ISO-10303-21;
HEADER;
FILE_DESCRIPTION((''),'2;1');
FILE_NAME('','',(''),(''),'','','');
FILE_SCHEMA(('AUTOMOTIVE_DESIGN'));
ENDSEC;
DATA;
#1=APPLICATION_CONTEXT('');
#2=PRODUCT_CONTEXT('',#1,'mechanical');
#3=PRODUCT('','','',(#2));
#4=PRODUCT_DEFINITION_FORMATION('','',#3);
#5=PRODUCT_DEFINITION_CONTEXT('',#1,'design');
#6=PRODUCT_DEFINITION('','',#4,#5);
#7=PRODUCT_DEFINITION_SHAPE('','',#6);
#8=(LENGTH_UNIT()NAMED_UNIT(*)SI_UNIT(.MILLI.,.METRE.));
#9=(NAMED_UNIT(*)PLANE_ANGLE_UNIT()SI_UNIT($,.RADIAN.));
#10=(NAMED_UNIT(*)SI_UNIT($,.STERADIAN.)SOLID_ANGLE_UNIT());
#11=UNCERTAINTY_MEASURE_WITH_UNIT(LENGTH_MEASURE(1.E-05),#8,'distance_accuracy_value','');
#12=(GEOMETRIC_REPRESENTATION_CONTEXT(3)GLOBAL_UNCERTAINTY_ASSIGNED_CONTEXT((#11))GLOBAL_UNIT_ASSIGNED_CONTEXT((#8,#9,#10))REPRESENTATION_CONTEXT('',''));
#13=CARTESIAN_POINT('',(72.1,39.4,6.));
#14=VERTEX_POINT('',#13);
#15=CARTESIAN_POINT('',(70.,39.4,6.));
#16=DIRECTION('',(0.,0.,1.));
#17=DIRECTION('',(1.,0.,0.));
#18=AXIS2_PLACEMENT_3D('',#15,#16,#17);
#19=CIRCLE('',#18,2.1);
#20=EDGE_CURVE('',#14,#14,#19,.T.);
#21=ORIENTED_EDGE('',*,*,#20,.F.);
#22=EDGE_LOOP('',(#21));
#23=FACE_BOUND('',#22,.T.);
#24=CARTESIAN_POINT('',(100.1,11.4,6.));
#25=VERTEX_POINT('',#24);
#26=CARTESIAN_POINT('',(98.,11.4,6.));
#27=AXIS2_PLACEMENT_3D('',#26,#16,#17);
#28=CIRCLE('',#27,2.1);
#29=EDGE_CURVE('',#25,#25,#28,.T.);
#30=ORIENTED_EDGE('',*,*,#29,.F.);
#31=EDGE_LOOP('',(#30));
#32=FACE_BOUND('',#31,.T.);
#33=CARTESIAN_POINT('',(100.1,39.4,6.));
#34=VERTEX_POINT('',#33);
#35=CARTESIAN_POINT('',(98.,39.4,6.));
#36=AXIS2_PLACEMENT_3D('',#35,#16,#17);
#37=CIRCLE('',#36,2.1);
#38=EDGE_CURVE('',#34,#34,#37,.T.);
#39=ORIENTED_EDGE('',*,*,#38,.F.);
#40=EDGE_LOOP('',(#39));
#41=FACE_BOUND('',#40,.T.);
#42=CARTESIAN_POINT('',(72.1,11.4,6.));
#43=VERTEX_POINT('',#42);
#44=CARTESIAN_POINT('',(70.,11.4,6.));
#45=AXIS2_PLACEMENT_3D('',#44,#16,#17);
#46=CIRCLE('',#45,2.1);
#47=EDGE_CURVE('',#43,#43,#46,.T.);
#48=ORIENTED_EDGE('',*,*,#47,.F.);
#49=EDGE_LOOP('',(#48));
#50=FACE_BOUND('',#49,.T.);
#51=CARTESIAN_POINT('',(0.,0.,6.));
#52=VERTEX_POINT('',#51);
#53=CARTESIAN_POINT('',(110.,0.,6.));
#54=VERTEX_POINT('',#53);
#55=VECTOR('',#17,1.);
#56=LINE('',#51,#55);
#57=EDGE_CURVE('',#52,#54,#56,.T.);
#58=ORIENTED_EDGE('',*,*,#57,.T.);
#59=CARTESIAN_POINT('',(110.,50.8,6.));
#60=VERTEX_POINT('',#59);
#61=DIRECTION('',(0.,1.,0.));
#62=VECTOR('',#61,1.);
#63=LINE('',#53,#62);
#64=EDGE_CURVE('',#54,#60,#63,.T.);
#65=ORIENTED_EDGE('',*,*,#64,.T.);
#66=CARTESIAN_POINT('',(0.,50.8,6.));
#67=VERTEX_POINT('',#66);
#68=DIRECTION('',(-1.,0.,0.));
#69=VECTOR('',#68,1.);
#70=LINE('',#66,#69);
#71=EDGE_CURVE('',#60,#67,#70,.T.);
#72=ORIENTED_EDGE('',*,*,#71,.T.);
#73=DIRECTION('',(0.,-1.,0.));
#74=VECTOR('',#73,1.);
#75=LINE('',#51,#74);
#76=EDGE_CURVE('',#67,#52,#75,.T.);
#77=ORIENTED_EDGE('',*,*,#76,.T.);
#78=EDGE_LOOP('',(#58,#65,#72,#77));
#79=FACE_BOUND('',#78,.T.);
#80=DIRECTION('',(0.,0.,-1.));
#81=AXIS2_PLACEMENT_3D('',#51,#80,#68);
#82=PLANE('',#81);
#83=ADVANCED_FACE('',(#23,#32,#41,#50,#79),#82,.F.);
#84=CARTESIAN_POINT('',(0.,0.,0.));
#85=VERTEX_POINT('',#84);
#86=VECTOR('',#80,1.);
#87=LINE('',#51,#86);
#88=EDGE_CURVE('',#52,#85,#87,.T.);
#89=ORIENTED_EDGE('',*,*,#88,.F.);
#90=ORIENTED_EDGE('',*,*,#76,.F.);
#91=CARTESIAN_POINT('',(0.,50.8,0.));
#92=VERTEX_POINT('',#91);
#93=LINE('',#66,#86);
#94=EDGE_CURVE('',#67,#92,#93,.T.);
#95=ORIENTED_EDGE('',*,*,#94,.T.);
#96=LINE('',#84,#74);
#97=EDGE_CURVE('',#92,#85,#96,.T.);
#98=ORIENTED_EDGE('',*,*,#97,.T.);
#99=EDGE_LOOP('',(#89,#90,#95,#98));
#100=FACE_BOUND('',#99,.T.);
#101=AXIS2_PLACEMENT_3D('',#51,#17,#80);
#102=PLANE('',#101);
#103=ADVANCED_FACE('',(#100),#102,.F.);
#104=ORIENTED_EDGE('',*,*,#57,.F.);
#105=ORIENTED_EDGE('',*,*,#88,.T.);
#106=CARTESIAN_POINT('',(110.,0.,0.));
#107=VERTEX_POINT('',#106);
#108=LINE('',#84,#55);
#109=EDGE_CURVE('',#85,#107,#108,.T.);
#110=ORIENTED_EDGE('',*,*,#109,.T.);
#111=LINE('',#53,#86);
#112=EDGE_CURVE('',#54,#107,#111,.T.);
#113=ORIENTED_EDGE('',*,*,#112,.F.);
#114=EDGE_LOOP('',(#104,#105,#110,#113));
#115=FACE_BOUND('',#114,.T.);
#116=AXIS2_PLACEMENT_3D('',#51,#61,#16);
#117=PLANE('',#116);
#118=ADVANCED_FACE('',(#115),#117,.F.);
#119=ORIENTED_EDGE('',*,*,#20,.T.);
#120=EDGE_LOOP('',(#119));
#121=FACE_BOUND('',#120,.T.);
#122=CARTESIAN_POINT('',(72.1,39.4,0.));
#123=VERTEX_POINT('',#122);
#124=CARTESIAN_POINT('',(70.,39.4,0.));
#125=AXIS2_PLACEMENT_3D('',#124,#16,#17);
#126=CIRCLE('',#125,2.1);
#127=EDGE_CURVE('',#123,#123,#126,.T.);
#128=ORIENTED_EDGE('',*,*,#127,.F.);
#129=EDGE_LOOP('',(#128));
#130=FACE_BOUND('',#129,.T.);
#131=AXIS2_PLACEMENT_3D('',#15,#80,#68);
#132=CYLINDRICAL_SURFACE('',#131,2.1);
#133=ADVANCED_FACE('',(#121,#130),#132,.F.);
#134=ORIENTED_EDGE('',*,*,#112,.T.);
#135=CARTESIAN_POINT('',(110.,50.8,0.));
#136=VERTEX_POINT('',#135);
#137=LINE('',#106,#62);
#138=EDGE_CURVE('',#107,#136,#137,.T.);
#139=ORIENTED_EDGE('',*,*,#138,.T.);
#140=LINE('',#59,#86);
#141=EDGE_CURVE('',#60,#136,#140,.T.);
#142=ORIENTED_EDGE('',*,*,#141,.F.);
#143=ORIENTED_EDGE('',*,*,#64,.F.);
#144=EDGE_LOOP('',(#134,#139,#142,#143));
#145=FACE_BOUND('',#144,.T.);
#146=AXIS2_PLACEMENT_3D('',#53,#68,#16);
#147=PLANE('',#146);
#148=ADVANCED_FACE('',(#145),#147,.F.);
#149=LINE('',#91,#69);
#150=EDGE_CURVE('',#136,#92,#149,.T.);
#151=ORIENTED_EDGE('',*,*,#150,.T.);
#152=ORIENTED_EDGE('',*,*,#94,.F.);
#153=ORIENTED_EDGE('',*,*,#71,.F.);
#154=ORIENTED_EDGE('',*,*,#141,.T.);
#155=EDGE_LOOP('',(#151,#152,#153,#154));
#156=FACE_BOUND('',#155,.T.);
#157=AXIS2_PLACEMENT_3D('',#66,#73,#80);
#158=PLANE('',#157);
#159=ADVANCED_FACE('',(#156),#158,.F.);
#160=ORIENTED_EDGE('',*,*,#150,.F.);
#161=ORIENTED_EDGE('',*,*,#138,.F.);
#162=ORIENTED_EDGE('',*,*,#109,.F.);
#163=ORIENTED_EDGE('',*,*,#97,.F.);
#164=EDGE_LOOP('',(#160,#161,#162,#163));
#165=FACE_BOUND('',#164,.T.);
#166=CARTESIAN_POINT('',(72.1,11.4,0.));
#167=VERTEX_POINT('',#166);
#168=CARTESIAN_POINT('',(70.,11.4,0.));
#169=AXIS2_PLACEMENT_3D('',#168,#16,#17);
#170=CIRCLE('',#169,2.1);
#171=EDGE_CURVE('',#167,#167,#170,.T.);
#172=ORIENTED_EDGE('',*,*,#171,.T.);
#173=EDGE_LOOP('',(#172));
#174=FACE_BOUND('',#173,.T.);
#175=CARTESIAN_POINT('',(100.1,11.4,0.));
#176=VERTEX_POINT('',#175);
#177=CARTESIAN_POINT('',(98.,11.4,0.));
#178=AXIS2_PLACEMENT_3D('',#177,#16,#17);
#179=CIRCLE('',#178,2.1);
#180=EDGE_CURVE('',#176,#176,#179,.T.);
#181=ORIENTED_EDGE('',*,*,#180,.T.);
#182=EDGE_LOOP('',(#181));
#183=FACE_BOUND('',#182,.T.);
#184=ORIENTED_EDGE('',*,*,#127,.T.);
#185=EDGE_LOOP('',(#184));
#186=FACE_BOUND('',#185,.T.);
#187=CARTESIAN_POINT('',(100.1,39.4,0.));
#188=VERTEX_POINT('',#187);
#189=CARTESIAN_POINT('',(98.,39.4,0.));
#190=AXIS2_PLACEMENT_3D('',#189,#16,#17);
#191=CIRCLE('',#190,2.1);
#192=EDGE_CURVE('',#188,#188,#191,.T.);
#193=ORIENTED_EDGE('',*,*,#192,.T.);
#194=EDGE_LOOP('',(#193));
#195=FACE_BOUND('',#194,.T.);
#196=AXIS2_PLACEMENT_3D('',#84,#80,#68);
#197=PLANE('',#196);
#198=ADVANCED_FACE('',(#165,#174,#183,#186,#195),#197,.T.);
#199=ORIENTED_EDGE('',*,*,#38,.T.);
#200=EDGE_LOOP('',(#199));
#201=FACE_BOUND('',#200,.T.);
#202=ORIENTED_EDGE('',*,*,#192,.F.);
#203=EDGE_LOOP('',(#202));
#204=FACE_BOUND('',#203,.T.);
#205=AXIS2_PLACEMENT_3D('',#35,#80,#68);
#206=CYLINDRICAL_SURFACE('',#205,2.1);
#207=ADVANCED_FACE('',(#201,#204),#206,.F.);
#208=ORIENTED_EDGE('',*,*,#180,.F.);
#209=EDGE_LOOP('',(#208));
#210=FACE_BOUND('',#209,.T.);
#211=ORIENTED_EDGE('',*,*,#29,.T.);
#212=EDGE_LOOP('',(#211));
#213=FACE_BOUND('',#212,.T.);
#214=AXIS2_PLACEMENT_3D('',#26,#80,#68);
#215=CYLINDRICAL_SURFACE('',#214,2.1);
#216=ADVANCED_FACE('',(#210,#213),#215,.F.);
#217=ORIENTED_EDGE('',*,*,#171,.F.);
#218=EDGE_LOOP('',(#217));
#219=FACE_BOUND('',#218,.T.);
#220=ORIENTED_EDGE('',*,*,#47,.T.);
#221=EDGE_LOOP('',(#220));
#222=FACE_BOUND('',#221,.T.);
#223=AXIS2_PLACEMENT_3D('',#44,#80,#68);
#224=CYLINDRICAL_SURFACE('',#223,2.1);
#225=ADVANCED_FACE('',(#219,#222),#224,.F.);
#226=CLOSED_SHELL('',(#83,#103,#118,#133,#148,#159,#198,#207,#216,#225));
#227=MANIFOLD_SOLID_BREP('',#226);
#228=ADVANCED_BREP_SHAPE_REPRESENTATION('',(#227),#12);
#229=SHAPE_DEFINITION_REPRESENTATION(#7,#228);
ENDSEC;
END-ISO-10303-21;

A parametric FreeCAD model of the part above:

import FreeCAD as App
import Part
import Sketcher
from FreeCAD import Vector
Q = App.Units.Quantity

doc = App.newDocument("Part")
body = doc.addObject("PartDesign::Body", "Body")

# Sketch on XY plane
sketch1 = doc.addObject("Sketcher::SketchObject", "Sketch")
body.addObject(sketch1)
sketch1.AttachmentSupport = (doc.XY_Plane, [""])
sketch1.MapMode = "FlatFace"
sketch1.addGeometry([
    Part.LineSegment(Vector(0, 50.8, 0), Vector(0, 0, 0)),  # 0
    Part.LineSegment(Vector(0, 0, 0), Vector(110, 0, 0)),  # 1
    Part.LineSegment(Vector(110, 0, 0), Vector(110, 50.8, 0)),  # 2
    Part.LineSegment(Vector(110, 50.8, 0), Vector(0, 50.8, 0)),  # 3
    Part.Circle(Vector(70, 11.4, 0), Vector(0, 0, 1), 2.1),  # 4
    Part.Circle(Vector(98, 11.4, 0), Vector(0, 0, 1), 2.1),  # 5
    Part.Circle(Vector(70, 39.4, 0), Vector(0, 0, 1), 2.1),  # 6
    Part.Circle(Vector(98, 39.4, 0), Vector(0, 0, 1), 2.1),  # 7
], False)
sketch1.addConstraint([
    Sketcher.Constraint("Coincident", 0, 2, 1, 1),
    Sketcher.Constraint("Coincident", 1, 2, 2, 1),
    Sketcher.Constraint("Coincident", 2, 2, 3, 1),
    Sketcher.Constraint("Coincident", 3, 2, 0, 1),
    Sketcher.Constraint("Vertical", 0),
    Sketcher.Constraint("Horizontal", 1),
    Sketcher.Constraint("Vertical", 2),
    Sketcher.Constraint("Horizontal", 3),
    Sketcher.Constraint("Coincident", 0, 2, -1, 1),
    Sketcher.Constraint("Equal", 4, 5),
    Sketcher.Constraint("Equal", 5, 6),
    Sketcher.Constraint("Equal", 6, 7),
    Sketcher.Constraint("Horizontal", 4, 3, 5, 3),
    Sketcher.Constraint("Horizontal", 6, 3, 7, 3),
    Sketcher.Constraint("Vertical", 4, 3, 6, 3),
    Sketcher.Constraint("Vertical", 5, 3, 7, 3),
    Sketcher.Constraint("Diameter", 4, Q("4.2 mm")),
    Sketcher.Constraint("DistanceX", 1, 1, 1, 2, Q("110 mm")),
    Sketcher.Constraint("DistanceY", 0, 2, 0, 1, Q("50.8 mm")),
    Sketcher.Constraint("DistanceX", -1, 1, 4, 3, Q("70 mm")),
    Sketcher.Constraint("DistanceX", -1, 1, 5, 3, Q("98 mm")),
    Sketcher.Constraint("DistanceY", 4, 3, 6, 3, Q("28 mm")),
    Sketcher.Constraint("DistanceY", -1, 1, 4, 3, Q("11.4 mm")),
])
pad1 = doc.addObject("PartDesign::Pad", "Pad")
body.addObject(pad1)
pad1.Profile = sketch1
pad1.Length = 6

doc.recompute()
